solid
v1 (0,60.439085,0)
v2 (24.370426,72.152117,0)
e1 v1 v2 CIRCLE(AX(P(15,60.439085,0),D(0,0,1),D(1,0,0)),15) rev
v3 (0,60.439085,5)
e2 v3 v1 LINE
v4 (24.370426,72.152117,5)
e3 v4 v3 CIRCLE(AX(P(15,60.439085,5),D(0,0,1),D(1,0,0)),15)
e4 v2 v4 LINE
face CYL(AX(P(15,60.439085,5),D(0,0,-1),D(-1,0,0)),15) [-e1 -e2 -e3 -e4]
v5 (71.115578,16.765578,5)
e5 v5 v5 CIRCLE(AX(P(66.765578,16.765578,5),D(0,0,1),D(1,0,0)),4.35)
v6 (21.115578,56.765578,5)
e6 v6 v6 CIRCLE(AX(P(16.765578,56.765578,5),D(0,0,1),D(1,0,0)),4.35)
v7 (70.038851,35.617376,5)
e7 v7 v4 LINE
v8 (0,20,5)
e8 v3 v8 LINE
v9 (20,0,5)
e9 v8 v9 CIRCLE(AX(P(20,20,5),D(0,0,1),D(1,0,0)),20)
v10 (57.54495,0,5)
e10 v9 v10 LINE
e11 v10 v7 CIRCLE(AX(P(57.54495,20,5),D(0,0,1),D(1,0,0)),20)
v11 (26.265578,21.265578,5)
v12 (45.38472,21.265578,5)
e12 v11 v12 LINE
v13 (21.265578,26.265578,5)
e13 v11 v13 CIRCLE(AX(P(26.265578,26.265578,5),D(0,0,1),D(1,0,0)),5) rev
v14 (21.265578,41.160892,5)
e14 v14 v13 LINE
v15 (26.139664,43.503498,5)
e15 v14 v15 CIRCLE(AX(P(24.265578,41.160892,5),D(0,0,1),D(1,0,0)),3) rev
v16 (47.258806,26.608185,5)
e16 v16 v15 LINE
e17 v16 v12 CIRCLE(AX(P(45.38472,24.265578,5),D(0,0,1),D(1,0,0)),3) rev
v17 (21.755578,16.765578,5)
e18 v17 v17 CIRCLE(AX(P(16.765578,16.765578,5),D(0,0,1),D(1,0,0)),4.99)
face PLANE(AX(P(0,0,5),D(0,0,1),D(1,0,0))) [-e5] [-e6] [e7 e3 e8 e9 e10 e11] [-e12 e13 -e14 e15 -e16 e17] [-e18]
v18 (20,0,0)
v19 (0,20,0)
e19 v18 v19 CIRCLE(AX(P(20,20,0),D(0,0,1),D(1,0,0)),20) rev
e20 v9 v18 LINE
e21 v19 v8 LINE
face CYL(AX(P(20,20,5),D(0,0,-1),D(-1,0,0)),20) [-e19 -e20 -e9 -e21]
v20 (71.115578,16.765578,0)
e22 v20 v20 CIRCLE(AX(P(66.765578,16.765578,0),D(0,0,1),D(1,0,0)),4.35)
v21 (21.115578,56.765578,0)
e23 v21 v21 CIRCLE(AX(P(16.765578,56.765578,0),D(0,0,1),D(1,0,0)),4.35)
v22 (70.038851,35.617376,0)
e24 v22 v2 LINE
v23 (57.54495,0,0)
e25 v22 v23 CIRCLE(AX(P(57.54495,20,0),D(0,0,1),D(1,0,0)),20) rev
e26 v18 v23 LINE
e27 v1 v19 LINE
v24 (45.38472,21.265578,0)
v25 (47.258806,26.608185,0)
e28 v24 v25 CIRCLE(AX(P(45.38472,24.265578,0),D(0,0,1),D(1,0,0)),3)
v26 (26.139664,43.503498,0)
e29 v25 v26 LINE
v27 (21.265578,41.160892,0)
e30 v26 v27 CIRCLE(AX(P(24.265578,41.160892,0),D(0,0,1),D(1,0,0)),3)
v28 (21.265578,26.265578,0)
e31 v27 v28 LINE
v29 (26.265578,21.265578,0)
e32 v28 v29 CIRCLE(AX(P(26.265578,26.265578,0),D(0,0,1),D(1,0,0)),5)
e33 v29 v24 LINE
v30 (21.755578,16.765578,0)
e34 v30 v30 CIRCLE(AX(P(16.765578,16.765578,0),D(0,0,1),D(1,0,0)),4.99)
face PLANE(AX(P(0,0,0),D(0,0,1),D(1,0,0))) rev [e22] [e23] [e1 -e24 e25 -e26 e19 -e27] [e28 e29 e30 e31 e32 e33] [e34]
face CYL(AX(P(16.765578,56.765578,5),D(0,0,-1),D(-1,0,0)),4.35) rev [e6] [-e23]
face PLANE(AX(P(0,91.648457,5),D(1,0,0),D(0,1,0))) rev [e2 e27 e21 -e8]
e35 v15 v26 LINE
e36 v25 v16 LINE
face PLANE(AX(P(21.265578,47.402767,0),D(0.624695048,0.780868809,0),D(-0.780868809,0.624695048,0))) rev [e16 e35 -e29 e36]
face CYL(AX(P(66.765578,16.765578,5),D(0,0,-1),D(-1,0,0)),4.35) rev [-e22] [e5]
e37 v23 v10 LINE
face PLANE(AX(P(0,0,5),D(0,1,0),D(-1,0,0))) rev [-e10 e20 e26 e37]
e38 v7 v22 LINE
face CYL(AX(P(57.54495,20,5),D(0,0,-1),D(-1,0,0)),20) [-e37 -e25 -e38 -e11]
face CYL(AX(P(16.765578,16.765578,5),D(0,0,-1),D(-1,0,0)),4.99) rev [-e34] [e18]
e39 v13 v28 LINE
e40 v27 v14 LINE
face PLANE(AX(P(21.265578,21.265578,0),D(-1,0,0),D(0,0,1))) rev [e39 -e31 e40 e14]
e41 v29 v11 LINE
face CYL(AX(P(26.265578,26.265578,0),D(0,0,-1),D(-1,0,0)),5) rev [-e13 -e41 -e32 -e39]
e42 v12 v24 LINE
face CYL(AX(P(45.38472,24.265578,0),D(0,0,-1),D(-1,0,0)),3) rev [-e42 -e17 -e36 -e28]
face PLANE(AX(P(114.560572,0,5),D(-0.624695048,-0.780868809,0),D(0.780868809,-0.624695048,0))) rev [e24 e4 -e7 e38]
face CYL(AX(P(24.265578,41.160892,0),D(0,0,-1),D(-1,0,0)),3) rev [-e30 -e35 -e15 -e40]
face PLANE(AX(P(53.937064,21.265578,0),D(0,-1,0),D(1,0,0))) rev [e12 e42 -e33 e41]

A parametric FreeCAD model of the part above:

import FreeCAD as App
import Part
import Sketcher


def edges_at(feature, points):
    """Names of the edges that pass closest to the given points."""
    edges = feature.Shape.Edges
    near = lambda p: min(range(len(edges)), key=lambda i: edges[i].distToShape(Part.Vertex(*p))[0])
    return sorted({f"Edge{near(p) + 1}" for p in points})


def add_polygon(sketch, points):
    """Adds a closed chain of lines whose ends are joined by coincident constraints."""
    first, n = sketch.GeometryCount, len(points)
    for a, b in zip(points, points[1:] + points[:1]):
        sketch.addGeometry(Part.LineSegment(App.Vector(*a, 0), App.Vector(*b, 0)), False)
    for i in range(n):
        sketch.addConstraint(Sketcher.Constraint("Coincident", first + i, 2, first + (i + 1) % n, 1))

doc = App.newDocument("Part")
params = doc.addObject("Spreadsheet::Sheet", "Params")
for row, (alias, value) in enumerate([
    ("sketch1_diameter", "8.7 mm"),
    ("sketch1_diameter2", "9.98 mm"),
    ("pad1_length", "5 mm"),
    ("fillet_radius", "15 mm"),
    ("fillet2_radius", "20 mm"),
    ("fillet3_radius", "20 mm"),
    ("fillet4_radius", "5 mm"),
    ("fillet5_radius", "3 mm"),
    ("fillet6_radius", "3 mm"),
], start=1):
    params.set(f"A{row}", alias)
    params.set(f"B{row}", "=" + value)
    params.setAlias(f"B{row}", alias)

body = doc.addObject("PartDesign::Body", "Body")

# Sketch on XY plane
sketch1 = body.newObject("Sketcher::SketchObject", "Sketch")
sketch1.AttachmentSupport = (doc.getObject("XY_Plane"), [""])
sketch1.MapMode = "FlatFace"
add_polygon(sketch1, [(0, 91.6), (0, 0), (114.6, 0)])  # lines 0-2
sketch1.addGeometry(Part.Circle(App.Vector(16.8, 16.8, 0), App.Vector(0, 0, 1), 5), False)  # 3
sketch1.addGeometry(Part.Circle(App.Vector(66.8, 16.8, 0), App.Vector(0, 0, 1), 4.3), False)  # 4
sketch1.addGeometry(Part.Circle(App.Vector(16.8, 56.8, 0), App.Vector(0, 0, 1), 4.3), False)  # 5
sketch1.addConstraint([
    Sketcher.Constraint("Vertical", 0),
    Sketcher.Constraint("Horizontal", 1),
    Sketcher.Constraint("Coincident", 0, 2, -1, 1),
    Sketcher.Constraint("Equal", 4, 5),
    Sketcher.Constraint("Horizontal", 3, 3, 4, 3),
    Sketcher.Constraint("Vertical", 3, 3, 5, 3),
    Sketcher.Constraint("Diameter", 4, 8.7),
    Sketcher.Constraint("Diameter", 3, 9.98),
    Sketcher.Constraint("DistanceX", 3, 3, 4, 3, 50.0),
    Sketcher.Constraint("DistanceY", 3, 3, 5, 3, 40.0),
    Sketcher.Constraint("DistanceX", 1, 1, 1, 2, 114.560572),
    Sketcher.Constraint("DistanceY", 0, 2, 0, 1, 91.648457),
    Sketcher.Constraint("DistanceX", -1, 1, 3, 3, 16.765578),
    Sketcher.Constraint("DistanceY", -1, 1, 3, 3, 16.765578),
])
sketch1.setExpression("Constraints[9]", "Params.sketch1_diameter")
sketch1.setExpression("Constraints[10]", "Params.sketch1_diameter2")
pad1 = body.newObject("PartDesign::Pad", "Pad")
pad1.Profile = sketch1
pad1.setExpression("Length", "Params.pad1_length")
doc.recompute()

fillet = body.newObject("PartDesign::Fillet", "Fillet")
fillet.Base = (pad1, edges_at(pad1, [(0, 91.648, 2.5)]))
fillet.setExpression("Radius", "Params.fillet_radius")
doc.recompute()

fillet2 = body.newObject("PartDesign::Fillet", "Fillet001")
fillet2.Base = (fillet, edges_at(fillet, [(0, 0, 2.5)]))
fillet2.setExpression("Radius", "Params.fillet2_radius")
doc.recompute()

fillet3 = body.newObject("PartDesign::Fillet", "Fillet002")
fillet3.Base = (fillet2, edges_at(fillet2, [(114.561, 0, 2.5)]))
fillet3.setExpression("Radius", "Params.fillet3_radius")

# Sketch on XY plane
sketch2 = body.newObject("Sketcher::SketchObject", "Sketch001")
sketch2.AttachmentSupport = (doc.getObject("XY_Plane"), [""])
sketch2.MapMode = "FlatFace"
sketch2.AttachmentOffset = App.Placement(App.Vector(0, 0, 5), App.Rotation())
add_polygon(sketch2, [(54, 21), (21, 47), (21, 21)])  # lines 0-2
sketch2.addConstraint([
    Sketcher.Constraint("Vertical", 1),
    Sketcher.Constraint("Horizontal", 2),
    Sketcher.Constraint("DistanceY", 1, 2, 1, 1, 26.137188),
    Sketcher.Constraint("DistanceX", 2, 1, 2, 2, 32.671485),
    Sketcher.Constraint("DistanceX", -1, 1, 0, 2, 21.265578),
    Sketcher.Constraint("DistanceY", -1, 1, 1, 2, 21.265578),
])
pocket1 = body.newObject("PartDesign::Pocket", "Pocket")
pocket1.Profile = sketch2
pocket1.Type = "ThroughAll"
doc.recompute()

fillet4 = body.newObject("PartDesign::Fillet", "Fillet003")
fillet4.Base = (pocket1, edges_at(pocket1, [(21.266, 21.266, 2.5)]))
fillet4.setExpression("Radius", "Params.fillet4_radius")
doc.recompute()

fillet5 = body.newObject("PartDesign::Fillet", "Fillet004")
fillet5.Base = (fillet4, edges_at(fillet4, [(21.266, 47.403, 2.5)]))
fillet5.setExpression("Radius", "Params.fillet5_radius")
doc.recompute()

fillet6 = body.newObject("PartDesign::Fillet", "Fillet005")
fillet6.Base = (fillet5, edges_at(fillet5, [(53.937, 21.266, 2.5)]))
fillet6.setExpression("Radius", "Params.fillet6_radius")

doc.recompute()
